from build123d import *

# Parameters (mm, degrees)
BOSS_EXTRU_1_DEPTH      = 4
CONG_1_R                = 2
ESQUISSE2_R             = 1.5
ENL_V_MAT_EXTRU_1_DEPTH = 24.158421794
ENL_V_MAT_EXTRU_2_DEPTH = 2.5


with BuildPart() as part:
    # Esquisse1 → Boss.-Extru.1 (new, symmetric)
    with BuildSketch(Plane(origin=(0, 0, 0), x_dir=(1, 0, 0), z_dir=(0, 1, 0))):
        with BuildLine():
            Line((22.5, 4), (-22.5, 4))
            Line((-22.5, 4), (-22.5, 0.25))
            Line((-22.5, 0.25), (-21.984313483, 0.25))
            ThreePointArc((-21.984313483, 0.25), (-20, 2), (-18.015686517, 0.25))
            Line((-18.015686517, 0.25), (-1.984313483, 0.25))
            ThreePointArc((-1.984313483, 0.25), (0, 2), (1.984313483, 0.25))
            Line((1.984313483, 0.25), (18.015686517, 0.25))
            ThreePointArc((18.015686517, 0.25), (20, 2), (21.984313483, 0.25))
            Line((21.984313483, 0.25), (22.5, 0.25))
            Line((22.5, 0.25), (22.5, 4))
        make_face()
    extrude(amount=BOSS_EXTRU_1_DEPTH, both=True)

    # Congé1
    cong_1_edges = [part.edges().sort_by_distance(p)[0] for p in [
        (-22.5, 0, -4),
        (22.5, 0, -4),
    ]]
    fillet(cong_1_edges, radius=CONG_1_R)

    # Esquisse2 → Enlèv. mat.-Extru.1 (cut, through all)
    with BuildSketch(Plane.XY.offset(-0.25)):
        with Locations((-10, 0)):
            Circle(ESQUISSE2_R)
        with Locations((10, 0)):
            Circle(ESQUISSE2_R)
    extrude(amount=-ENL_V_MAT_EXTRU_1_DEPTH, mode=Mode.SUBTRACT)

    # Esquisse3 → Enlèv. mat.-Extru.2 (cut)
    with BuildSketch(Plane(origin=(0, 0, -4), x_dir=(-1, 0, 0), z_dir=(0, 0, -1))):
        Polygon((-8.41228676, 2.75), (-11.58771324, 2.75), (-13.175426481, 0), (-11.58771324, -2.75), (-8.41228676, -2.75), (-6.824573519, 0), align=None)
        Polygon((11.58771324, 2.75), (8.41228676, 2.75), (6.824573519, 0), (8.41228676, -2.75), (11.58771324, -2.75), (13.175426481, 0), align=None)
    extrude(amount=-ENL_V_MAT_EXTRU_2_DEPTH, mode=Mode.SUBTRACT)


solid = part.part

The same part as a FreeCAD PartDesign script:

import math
import FreeCAD as App
import Part
import Sketcher
from FreeCAD import Vector
Q = App.Units.Quantity


def edges_at(feature, points):
    """Names of the edges that pass closest to the given points."""
    edges = feature.Shape.Edges
    near = lambda p: min(range(len(edges)), key=lambda i: edges[i].distToShape(Part.Vertex(*p))[0])
    return sorted({f"Edge{near(p) + 1}" for p in points})

doc = App.newDocument("Part")
body = doc.addObject("PartDesign::Body", "Body")

# Sketch on XZ plane
sketch1 = doc.addObject("Sketcher::SketchObject", "Sketch")
body.addObject(sketch1)
sketch1.AttachmentSupport = (doc.XZ_Plane, [""])
sketch1.MapMode = "FlatFace"
sketch1.addGeometry([
    Part.LineSegment(Vector(22.5, -4, 0), Vector(-22.5, -4, 0)),  # 0
    Part.LineSegment(Vector(-22.5, -4, 0), Vector(-22.5, -0.2, 0)),  # 1
    Part.LineSegment(Vector(-22.5, -0.2, 0), Vector(-22, -0.2, 0)),  # 2
    Part.ArcOfCircle(Part.Circle(Vector(-20, 0, 0), Vector(0, 0, 1), 2), math.radians(-173), math.radians(-7)),  # 3
    Part.LineSegment(Vector(-18, -0.2, 0), Vector(-2, -0.2, 0)),  # 4
    Part.ArcOfCircle(Part.Circle(Vector(0, 0, 0), Vector(0, 0, 1), 2), math.radians(-173), math.radians(-7)),  # 5
    Part.LineSegment(Vector(2, -0.2, 0), Vector(18, -0.2, 0)),  # 6
    Part.ArcOfCircle(Part.Circle(Vector(20, 0, 0), Vector(0, 0, 1), 2), math.radians(-173), math.radians(-7)),  # 7
    Part.LineSegment(Vector(22, -0.2, 0), Vector(22.5, -0.2, 0)),  # 8
    Part.LineSegment(Vector(22.5, -0.2, 0), Vector(22.5, -4, 0)),  # 9
], False)
sketch1.addConstraint([
    Sketcher.Constraint("Coincident", 0, 2, 1, 1),
    Sketcher.Constraint("Coincident", 1, 2, 2, 1),
    Sketcher.Constraint("Coincident", 2, 2, 3, 1),
    Sketcher.Constraint("Coincident", 3, 2, 4, 1),
    Sketcher.Constraint("Coincident", 4, 2, 5, 1),
    Sketcher.Constraint("Coincident", 5, 2, 6, 1),
    Sketcher.Constraint("Coincident", 6, 2, 7, 1),
    Sketcher.Constraint("Coincident", 7, 2, 8, 1),
    Sketcher.Constraint("Coincident", 8, 2, 9, 1),
    Sketcher.Constraint("Coincident", 9, 2, 0, 1),
    Sketcher.Constraint("Horizontal", 0),
    Sketcher.Constraint("Vertical", 1),
    Sketcher.Constraint("Horizontal", 2),
    Sketcher.Constraint("Horizontal", 4),
    Sketcher.Constraint("Horizontal", 6),
    Sketcher.Constraint("Horizontal", 8),
    Sketcher.Constraint("Vertical", 9),
    Sketcher.Constraint("Coincident", 5, 3, -1, 1),
    Sketcher.Constraint("Equal", 3, 5),
    Sketcher.Constraint("Equal", 5, 7),
    Sketcher.Constraint("Symmetric", 3, 3, 7, 3, -1, 1),
    Sketcher.Constraint("Symmetric", 3, 2, 6, 2, -2),
    Sketcher.Constraint("Symmetric", 1, 2, 8, 2, -2),
    Sketcher.Constraint("Horizontal", 2, 2, 3, 2),
    Sketcher.Constraint("Radius", 3, 2.0),
    Sketcher.Constraint("DistanceX", 0, 2, 0, 1, 45.0),
    Sketcher.Constraint("DistanceX", 3, 3, -1, 1, 20.0),
    Sketcher.Constraint("DistanceY", 0, 2, -1, 1, 4.0),
    Sketcher.Constraint("DistanceY", 1, 1, 1, 2, 3.75),
])
pad1 = doc.addObject("PartDesign::Pad", "Pad")
body.addObject(pad1)
pad1.Profile = sketch1
pad1.Length = 8
pad1.Midplane = True
doc.recompute()

fillet = doc.addObject("PartDesign::Fillet", "Fillet")
body.addObject(fillet)
fillet.Base = (pad1, edges_at(pad1, [(-22.5, 0, -4), (22.5, 0, -4)]))
fillet.Radius = 2

# Sketch on XY plane
sketch2 = doc.addObject("Sketcher::SketchObject", "Sketch001")
body.addObject(sketch2)
sketch2.AttachmentSupport = (doc.XY_Plane, [""])
sketch2.MapMode = "FlatFace"
sketch2.AttachmentOffset = App.Placement(Vector(0, 0, -0.25), App.Rotation())
sketch2.addGeometry([
    Part.Circle(Vector(-10, 0, 0), Vector(0, 0, 1), 1.5),
    Part.Circle(Vector(10, 0, 0), Vector(0, 0, 1), 1.5),
], False)
sketch2.addConstraint([
    Sketcher.Constraint("Equal", 0, 1),
    Sketcher.Constraint("Symmetric", 0, 3, 1, 3, -1, 1),
    Sketcher.Constraint("PointOnObject", 0, 3, -1),
    Sketcher.Constraint("Diameter", 0, 3.0),
    Sketcher.Constraint("DistanceX", 0, 3, -1, 1, 10.0),
])
pocket1 = doc.addObject("PartDesign::Pocket", "Pocket")
body.addObject(pocket1)
pocket1.Profile = sketch2
pocket1.Type = "ThroughAll"

# Sketch on XY plane
sketch3 = doc.addObject("Sketcher::SketchObject", "Sketch002")
body.addObject(sketch3)
sketch3.AttachmentSupport = (doc.XY_Plane, [""])
sketch3.MapMode = "FlatFace"
sketch3.AttachmentOffset = App.Placement(Vector(0, 0, -4), App.Rotation())
sketch3.addGeometry([
    Part.LineSegment(Vector(8.4, 2.8, 0), Vector(11.6, 2.8, 0)),  # 0
    Part.LineSegment(Vector(11.6, 2.8, 0), Vector(13.2, 0, 0)),  # 1
    Part.LineSegment(Vector(13.2, 0, 0), Vector(11.6, -2.8, 0)),  # 2
    Part.LineSegment(Vector(11.6, -2.8, 0), Vector(8.4, -2.8, 0)),  # 3
    Part.LineSegment(Vector(8.4, -2.8, 0), Vector(6.8, 0, 0)),  # 4
    Part.LineSegment(Vector(6.8, 0, 0), Vector(8.4, 2.8, 0)),  # 5
    Part.LineSegment(Vector(-11.6, 2.8, 0), Vector(-8.4, 2.8, 0)),  # 6
    Part.LineSegment(Vector(-8.4, 2.8, 0), Vector(-6.8, 0, 0)),  # 7
    Part.LineSegment(Vector(-6.8, 0, 0), Vector(-8.4, -2.8, 0)),  # 8
    Part.LineSegment(Vector(-8.4, -2.8, 0), Vector(-11.6, -2.8, 0)),  # 9
    Part.LineSegment(Vector(-11.6, -2.8, 0), Vector(-13.2, 0, 0)),  # 10
    Part.LineSegment(Vector(-13.2, 0, 0), Vector(-11.6, 2.8, 0)),  # 11
], False)
sketch3.addConstraint([
    Sketcher.Constraint("Coincident", 0, 2, 1, 1),
    Sketcher.Constraint("Coincident", 1, 2, 2, 1),
    Sketcher.Constraint("Coincident", 2, 2, 3, 1),
    Sketcher.Constraint("Coincident", 3, 2, 4, 1),
    Sketcher.Constraint("Coincident", 4, 2, 5, 1),
    Sketcher.Constraint("Coincident", 5, 2, 0, 1),
    Sketcher.Constraint("Coincident", 6, 2, 7, 1),
    Sketcher.Constraint("Coincident", 7, 2, 8, 1),
    Sketcher.Constraint("Coincident", 8, 2, 9, 1),
    Sketcher.Constraint("Coincident", 9, 2, 10, 1),
    Sketcher.Constraint("Coincident", 10, 2, 11, 1),
    Sketcher.Constraint("Coincident", 11, 2, 6, 1),
    Sketcher.Constraint("Horizontal", 0),
    Sketcher.Constraint("Horizontal", 3),
    Sketcher.Constraint("Horizontal", 6),
    Sketcher.Constraint("Horizontal", 9),
    Sketcher.Constraint("Symmetric", 3, 2, 6, 2, -1, 1),
    Sketcher.Constraint("Symmetric", 4, 2, 7, 2, -1, 1),
    Sketcher.Constraint("Symmetric", 5, 2, 8, 2, -1, 1),
    Sketcher.Constraint("Symmetric", 1, 2, 10, 2, -1, 1),
    Sketcher.Constraint("Symmetric", 5, 2, 6, 2, -2),
    Sketcher.Constraint("PointOnObject", 1, 2, -1),
    Sketcher.Constraint("PointOnObject", 4, 2, -1),
    Sketcher.Constraint("Parallel", 1, 4),
    Sketcher.Constraint("Parallel", 2, 5),
    Sketcher.Constraint("Parallel", 7, 10),
    Sketcher.Constraint("Parallel", 8, 11),
    Sketcher.Constraint("Angle", 1, Q("-60 deg")),
    Sketcher.Constraint("DistanceX", 6, 2, 0, 2, 20.0),
    Sketcher.Constraint("DistanceY", 2, 2, 0, 2, 5.5),
    Sketcher.Constraint("DistanceX", 0, 1, 0, 2, 3.175426),
])
pocket2 = doc.addObject("PartDesign::Pocket", "Pocket001")
body.addObject(pocket2)
pocket2.Profile = sketch3
pocket2.Length = 2.5
pocket2.Reversed = True

doc.recompute()
